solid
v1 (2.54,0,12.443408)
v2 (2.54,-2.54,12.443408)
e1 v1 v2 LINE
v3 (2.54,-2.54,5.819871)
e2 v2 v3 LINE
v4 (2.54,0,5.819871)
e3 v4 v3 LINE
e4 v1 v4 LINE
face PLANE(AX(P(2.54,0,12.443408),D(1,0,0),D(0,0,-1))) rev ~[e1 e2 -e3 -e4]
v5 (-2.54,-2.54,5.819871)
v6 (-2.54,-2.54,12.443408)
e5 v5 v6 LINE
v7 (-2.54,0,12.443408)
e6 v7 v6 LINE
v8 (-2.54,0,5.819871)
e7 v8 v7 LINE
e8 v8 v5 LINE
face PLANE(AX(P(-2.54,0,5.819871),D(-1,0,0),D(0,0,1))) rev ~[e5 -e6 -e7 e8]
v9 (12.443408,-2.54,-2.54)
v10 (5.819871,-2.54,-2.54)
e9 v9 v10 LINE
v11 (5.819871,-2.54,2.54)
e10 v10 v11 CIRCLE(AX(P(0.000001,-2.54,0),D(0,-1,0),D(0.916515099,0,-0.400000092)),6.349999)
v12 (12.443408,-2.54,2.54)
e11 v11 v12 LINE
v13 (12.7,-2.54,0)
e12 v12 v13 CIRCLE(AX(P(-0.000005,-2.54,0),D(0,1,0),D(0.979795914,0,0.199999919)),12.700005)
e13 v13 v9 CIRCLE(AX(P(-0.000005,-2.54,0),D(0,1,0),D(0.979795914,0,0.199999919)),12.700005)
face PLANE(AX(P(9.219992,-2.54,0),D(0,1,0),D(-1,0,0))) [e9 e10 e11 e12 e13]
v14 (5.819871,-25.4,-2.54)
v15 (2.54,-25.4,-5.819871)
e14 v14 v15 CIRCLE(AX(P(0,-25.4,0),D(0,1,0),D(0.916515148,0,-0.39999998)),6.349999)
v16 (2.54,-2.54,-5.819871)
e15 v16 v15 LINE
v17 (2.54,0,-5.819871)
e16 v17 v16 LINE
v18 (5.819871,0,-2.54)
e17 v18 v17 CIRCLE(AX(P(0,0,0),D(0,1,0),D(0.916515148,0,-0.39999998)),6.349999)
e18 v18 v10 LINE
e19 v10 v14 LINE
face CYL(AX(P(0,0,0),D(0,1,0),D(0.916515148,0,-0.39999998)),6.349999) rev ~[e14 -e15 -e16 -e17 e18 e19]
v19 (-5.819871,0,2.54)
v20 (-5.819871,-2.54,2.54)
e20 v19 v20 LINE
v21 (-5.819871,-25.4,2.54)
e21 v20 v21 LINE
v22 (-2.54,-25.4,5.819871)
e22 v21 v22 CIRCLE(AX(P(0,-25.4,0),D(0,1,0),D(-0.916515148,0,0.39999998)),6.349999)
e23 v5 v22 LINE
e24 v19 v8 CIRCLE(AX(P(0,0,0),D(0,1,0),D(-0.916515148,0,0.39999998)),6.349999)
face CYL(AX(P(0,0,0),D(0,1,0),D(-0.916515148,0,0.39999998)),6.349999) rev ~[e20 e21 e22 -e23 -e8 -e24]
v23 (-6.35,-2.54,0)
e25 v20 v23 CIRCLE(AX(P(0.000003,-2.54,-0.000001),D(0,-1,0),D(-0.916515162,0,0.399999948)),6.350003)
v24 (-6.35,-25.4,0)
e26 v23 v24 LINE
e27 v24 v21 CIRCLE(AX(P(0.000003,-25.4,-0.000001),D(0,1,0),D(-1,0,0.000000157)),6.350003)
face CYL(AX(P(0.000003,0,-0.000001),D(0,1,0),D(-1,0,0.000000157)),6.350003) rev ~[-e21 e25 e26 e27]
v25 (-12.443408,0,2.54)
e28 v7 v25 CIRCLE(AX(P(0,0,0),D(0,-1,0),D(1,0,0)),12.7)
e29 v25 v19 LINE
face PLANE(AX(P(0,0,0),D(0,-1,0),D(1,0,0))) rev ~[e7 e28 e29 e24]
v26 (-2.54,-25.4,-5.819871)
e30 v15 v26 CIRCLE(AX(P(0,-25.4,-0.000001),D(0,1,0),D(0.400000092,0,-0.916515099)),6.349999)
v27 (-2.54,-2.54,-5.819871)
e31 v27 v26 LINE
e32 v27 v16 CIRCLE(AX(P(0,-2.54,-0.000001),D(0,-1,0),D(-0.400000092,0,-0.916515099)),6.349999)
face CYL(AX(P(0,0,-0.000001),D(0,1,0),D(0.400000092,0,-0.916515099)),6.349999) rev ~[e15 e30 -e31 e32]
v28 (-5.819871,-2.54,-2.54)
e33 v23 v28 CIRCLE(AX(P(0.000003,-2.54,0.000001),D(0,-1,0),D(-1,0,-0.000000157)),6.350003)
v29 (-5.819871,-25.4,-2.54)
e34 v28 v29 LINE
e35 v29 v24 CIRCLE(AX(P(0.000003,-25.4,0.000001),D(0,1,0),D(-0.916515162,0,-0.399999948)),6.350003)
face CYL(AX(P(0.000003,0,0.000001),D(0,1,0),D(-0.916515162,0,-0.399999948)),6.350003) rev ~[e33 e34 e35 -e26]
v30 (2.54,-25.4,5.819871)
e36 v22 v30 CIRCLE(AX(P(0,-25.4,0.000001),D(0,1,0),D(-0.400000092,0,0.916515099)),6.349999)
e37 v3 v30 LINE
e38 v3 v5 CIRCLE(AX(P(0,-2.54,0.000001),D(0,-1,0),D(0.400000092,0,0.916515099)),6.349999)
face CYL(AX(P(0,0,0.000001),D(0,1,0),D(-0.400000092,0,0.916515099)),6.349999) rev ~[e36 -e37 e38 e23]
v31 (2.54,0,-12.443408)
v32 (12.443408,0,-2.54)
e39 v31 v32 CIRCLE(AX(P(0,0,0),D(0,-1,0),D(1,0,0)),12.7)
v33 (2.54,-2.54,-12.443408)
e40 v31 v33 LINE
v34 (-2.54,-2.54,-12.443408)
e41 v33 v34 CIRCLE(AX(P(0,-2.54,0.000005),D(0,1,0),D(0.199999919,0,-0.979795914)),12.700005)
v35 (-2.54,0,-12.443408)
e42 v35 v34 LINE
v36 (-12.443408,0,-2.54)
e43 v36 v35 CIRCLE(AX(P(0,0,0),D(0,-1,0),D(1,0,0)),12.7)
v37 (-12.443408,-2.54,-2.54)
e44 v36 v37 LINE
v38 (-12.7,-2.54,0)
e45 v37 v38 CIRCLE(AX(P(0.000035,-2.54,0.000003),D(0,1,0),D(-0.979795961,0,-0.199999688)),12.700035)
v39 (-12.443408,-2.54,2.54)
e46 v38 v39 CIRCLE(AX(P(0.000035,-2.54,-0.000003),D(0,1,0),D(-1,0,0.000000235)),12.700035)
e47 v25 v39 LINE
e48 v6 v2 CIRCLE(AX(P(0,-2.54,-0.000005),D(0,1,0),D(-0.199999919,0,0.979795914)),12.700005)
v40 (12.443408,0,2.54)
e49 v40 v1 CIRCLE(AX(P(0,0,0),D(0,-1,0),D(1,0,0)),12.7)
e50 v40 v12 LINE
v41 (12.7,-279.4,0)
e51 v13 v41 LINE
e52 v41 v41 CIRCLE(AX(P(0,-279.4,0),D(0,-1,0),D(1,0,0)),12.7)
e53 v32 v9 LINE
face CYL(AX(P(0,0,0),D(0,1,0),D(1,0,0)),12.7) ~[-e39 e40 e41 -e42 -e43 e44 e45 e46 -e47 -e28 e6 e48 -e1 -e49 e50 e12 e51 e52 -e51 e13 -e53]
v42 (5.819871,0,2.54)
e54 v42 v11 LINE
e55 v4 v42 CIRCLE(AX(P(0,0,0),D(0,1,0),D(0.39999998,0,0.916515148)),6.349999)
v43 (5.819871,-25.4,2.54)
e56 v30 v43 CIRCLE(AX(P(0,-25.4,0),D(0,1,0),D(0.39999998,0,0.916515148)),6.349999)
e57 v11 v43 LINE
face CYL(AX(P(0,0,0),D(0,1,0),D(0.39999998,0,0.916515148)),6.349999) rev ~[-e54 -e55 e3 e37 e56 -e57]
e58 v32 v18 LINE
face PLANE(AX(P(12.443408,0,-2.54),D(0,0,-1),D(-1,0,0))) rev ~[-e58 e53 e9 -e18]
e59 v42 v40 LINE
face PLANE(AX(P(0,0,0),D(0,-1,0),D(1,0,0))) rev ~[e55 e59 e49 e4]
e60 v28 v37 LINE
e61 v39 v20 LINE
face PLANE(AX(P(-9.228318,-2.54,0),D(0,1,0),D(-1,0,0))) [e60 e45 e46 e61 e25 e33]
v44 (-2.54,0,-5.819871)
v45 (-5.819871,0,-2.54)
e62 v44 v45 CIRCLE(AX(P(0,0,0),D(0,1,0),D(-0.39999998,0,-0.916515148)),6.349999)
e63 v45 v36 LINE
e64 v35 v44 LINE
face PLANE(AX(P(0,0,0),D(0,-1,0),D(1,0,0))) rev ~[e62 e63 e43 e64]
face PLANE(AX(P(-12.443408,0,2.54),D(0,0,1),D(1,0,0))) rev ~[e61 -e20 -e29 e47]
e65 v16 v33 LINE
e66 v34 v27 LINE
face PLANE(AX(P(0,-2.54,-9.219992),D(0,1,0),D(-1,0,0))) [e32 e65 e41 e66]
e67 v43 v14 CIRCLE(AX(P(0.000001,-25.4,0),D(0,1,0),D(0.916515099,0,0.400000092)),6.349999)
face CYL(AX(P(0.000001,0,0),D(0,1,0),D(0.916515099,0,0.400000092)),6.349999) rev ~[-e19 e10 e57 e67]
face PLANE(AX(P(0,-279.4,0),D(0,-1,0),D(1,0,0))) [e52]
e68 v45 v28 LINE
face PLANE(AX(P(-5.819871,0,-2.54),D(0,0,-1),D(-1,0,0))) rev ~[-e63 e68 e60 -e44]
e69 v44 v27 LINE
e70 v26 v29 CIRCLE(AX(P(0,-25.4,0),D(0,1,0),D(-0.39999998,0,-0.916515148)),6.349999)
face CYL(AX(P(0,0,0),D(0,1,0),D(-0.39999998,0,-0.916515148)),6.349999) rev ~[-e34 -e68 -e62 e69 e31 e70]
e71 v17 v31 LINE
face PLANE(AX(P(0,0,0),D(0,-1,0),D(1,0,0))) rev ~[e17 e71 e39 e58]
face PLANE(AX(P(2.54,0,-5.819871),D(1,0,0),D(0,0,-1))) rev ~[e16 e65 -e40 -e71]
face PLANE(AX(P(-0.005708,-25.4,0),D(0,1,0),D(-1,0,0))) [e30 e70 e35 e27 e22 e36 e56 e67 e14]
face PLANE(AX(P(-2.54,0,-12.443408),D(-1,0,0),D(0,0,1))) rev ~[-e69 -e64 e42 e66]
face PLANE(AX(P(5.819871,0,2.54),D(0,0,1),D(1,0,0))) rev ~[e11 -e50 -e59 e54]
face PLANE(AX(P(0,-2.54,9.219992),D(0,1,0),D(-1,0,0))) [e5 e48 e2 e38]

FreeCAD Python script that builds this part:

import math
import FreeCAD as App
import Part
import Sketcher

V = App.Vector
Q = App.Units.Quantity

doc = App.newDocument("Part")
body = doc.addObject("PartDesign::Body", "Body")

# Sketch on XZ plane
sketch1 = body.newObject("Sketcher::SketchObject", "Sketch")
sketch1.AttachmentSupport = (doc.getObject("XZ_Plane"), [""])
sketch1.MapMode = "FlatFace"
sketch1.addGeometry(Part.Circle(V(0, 0, 0), V(0, 0, 1), 13), False)
sketch1.addConstraint([
    Sketcher.Constraint("Coincident", 0, 3, -1, 1),
    Sketcher.Constraint("Diameter", 0, Q("1 in")),
])
pad1 = body.newObject("PartDesign::Pad", "Pad")
pad1.Profile = sketch1
pad1.Length = Q("11 in")

# Sketch on XZ plane
sketch2 = body.newObject("Sketcher::SketchObject", "Sketch001")
sketch2.AttachmentSupport = (doc.getObject("XZ_Plane"), [""])
sketch2.MapMode = "FlatFace"
sketch2.addGeometry([
    Part.ArcOfCircle(Part.Circle(V(0, 0, 0), V(0, 0, 1), 6.4), math.radians(-180), math.radians(-156)),  # 0
    Part.ArcOfCircle(Part.Circle(V(0, 0, 0), V(0, 0, 1), 6.4), math.radians(156), math.radians(180)),  # 1
    Part.ArcOfCircle(Part.Circle(V(0, 0, 0), V(0, 0, 1), 6.3), math.radians(114), math.radians(156)),  # 2
    Part.ArcOfCircle(Part.Circle(V(0, 0, 0), V(0, 0, 1), 6.3), math.radians(66), math.radians(114)),  # 3
    Part.ArcOfCircle(Part.Circle(V(0, 0, 0), V(0, 0, 1), 6.3), math.radians(24), math.radians(66)),  # 4
    Part.ArcOfCircle(Part.Circle(V(0, 0, 0), V(0, 0, 1), 6.3), math.radians(-24), math.radians(24)),  # 5
    Part.ArcOfCircle(Part.Circle(V(0, 0, 0), V(0, 0, 1), 6.3), math.radians(-66), math.radians(-24)),  # 6
    Part.ArcOfCircle(Part.Circle(V(0, 0, 0), V(0, 0, 1), 6.3), math.radians(-114), math.radians(-66)),  # 7
    Part.ArcOfCircle(Part.Circle(V(0, 0, 0), V(0, 0, 1), 6.3), math.radians(-156), math.radians(-114)),  # 8
], False)
sketch2.addConstraint([
    Sketcher.Constraint("Tangent", 0, 1, 1, 2),
    Sketcher.Constraint("Tangent", 1, 1, 2, 2),
    Sketcher.Constraint("Tangent", 2, 1, 3, 2),
    Sketcher.Constraint("Tangent", 3, 1, 4, 2),
    Sketcher.Constraint("Tangent", 4, 1, 5, 2),
    Sketcher.Constraint("Tangent", 5, 1, 6, 2),
    Sketcher.Constraint("Tangent", 6, 1, 7, 2),
    Sketcher.Constraint("Tangent", 7, 1, 8, 2),
    Sketcher.Constraint("Tangent", 8, 1, 0, 2),
    Sketcher.Constraint("Coincident", 0, 3, -1, 1),
    Sketcher.Constraint("Coincident", 2, 3, -1, 1),
    Sketcher.Constraint("Coincident", 4, 3, -1, 1),
    Sketcher.Constraint("Coincident", 6, 3, -1, 1),
    Sketcher.Constraint("PointOnObject", 0, 1, -1),
    Sketcher.Constraint("Horizontal", 2, 1, 3, 1),
    Sketcher.Constraint("Horizontal", 1, 1, 4, 1),
    Sketcher.Constraint("Horizontal", 6, 1, 7, 1),
    Sketcher.Constraint("Horizontal", 5, 1, 8, 1),
    Sketcher.Constraint("Vertical", 4, 1, 5, 1),
    Sketcher.Constraint("Vertical", 3, 1, 6, 1),
    Sketcher.Constraint("Radius", 0, Q("0.2500001 in")),
    Sketcher.Constraint("DistanceY", -1, 1, 1, 1, Q("0.1 in")),
    Sketcher.Constraint("DistanceX", 2, 1, -1, 1, Q("0.1 in")),
])
pocket1 = body.newObject("PartDesign::Pocket", "Pocket")
pocket1.Profile = sketch2
pocket1.Length = Q("1 in")
pocket1.Reversed = True

# Sketch on XZ plane
sketch3 = body.newObject("Sketcher::SketchObject", "Sketch002")
sketch3.AttachmentSupport = (doc.getObject("XZ_Plane"), [""])
sketch3.MapMode = "FlatFace"
sketch3.addGeometry([
    Part.ArcOfCircle(Part.Circle(V(0, 0, 0), V(0, 0, 1), 6.4), math.radians(156), math.radians(180)),  # 0
    Part.ArcOfCircle(Part.Circle(V(0, 0, 0), V(0, 0, 1), 6.4), math.radians(-180), math.radians(-156)),  # 1
    Part.LineSegment(V(-5.8, -2.5, 0), V(-12.4, -2.5, 0)),  # 2
    Part.ArcOfCircle(Part.Circle(V(0, 0, 0), V(0, 0, 1), 12.7), math.radians(-180), math.radians(-168.46)),  # 3
    Part.ArcOfCircle(Part.Circle(V(0, 0, 0), V(0, 0, 1), 12.7), math.radians(168.46), math.radians(180)),  # 4
    Part.LineSegment(V(-12.4, 2.5, 0), V(-5.8, 2.5, 0)),  # 5
    Part.ArcOfCircle(Part.Circle(V(0, 0, 0), V(0, 0, 1), 6.3), math.radians(66), math.radians(114)),  # 6
    Part.LineSegment(V(-2.5, 5.8, 0), V(-2.5, 12.4, 0)),  # 7
    Part.ArcOfCircle(Part.Circle(V(0, 0, 0), V(0, 0, 1), 12.7), math.radians(78), math.radians(102)),  # 8
    Part.LineSegment(V(2.5, 12.4, 0), V(2.5, 5.8, 0)),  # 9
    Part.LineSegment(V(-2.5, -12.4, 0), V(-2.5, -5.8, 0)),  # 10
    Part.ArcOfCircle(Part.Circle(V(0, 0, 0), V(0, 0, 1), 6.3), math.radians(-114), math.radians(-66)),  # 11
    Part.LineSegment(V(2.5, -5.8, 0), V(2.5, -12.4, 0)),  # 12
    Part.ArcOfCircle(Part.Circle(V(0, 0, 0), V(0, 0, 1), 12.7), math.radians(-102), math.radians(-78)),  # 13
    Part.ArcOfCircle(Part.Circle(V(0, 0, 0), V(0, 0, 1), 6.3), math.radians(-24), math.radians(24)),  # 14
    Part.LineSegment(V(5.8, 2.5, 0), V(12.4, 2.5, 0)),  # 15
    Part.ArcOfCircle(Part.Circle(V(0, 0, 0), V(0, 0, 1), 12.7), math.radians(-12), math.radians(12)),  # 16
    Part.LineSegment(V(12.4, -2.5, 0), V(5.8, -2.5, 0)),  # 17
], False)
sketch3.addConstraint([
    Sketcher.Constraint("Tangent", 0, 2, 1, 1),
    Sketcher.Constraint("Coincident", 1, 2, 2, 1),
    Sketcher.Constraint("Coincident", 2, 2, 3, 2),
    Sketcher.Constraint("Tangent", 3, 1, 4, 2),
    Sketcher.Constraint("Coincident", 4, 1, 5, 1),
    Sketcher.Constraint("Coincident", 5, 2, 0, 1),
    Sketcher.Constraint("Coincident", 6, 2, 7, 1),
    Sketcher.Constraint("Coincident", 7, 2, 8, 2),
    Sketcher.Constraint("Coincident", 8, 1, 9, 1),
    Sketcher.Constraint("Coincident", 9, 2, 6, 1),
    Sketcher.Constraint("Coincident", 10, 2, 11, 1),
    Sketcher.Constraint("Coincident", 11, 2, 12, 1),
    Sketcher.Constraint("Coincident", 12, 2, 13, 2),
    Sketcher.Constraint("Coincident", 13, 1, 10, 1),
    Sketcher.Constraint("Coincident", 14, 2, 15, 1),
    Sketcher.Constraint("Coincident", 15, 2, 16, 2),
    Sketcher.Constraint("Coincident", 16, 1, 17, 1),
    Sketcher.Constraint("Coincident", 17, 2, 14, 1),
    Sketcher.Constraint("Horizontal", 2),
    Sketcher.Constraint("Horizontal", 5),
    Sketcher.Constraint("Vertical", 7),
    Sketcher.Constraint("Vertical", 9),
    Sketcher.Constraint("Vertical", 10),
    Sketcher.Constraint("Vertical", 12),
    Sketcher.Constraint("Horizontal", 15),
    Sketcher.Constraint("Horizontal", 17),
    Sketcher.Constraint("Coincident", 0, 3, -1, 1),
    Sketcher.Constraint("Coincident", 6, 3, -1, 1),
    Sketcher.Constraint("Coincident", 8, 3, -1, 1),
    Sketcher.Constraint("Coincident", 11, 3, -1, 1),
    Sketcher.Constraint("Coincident", 13, 3, -1, 1),
    Sketcher.Constraint("Coincident", 14, 3, -1, 1),
    Sketcher.Constraint("Coincident", 16, 3, -1, 1),
    Sketcher.Constraint("Equal", 0, 1),
    Sketcher.Constraint("Equal", 3, 4),
    Sketcher.Constraint("Equal", 6, 11),
    Sketcher.Constraint("Equal", 8, 13),
    Sketcher.Constraint("Equal", 11, 14),
    Sketcher.Constraint("Equal", 13, 16),
    Sketcher.Constraint("Symmetric", 1, 2, 14, 2, -1, 1),
    Sketcher.Constraint("Symmetric", 4, 1, 16, 1, -1, 1),
    Sketcher.Constraint("Symmetric", 2, 2, 16, 1, -2),
    Sketcher.Constraint("PointOnObject", 0, 2, -1),
    Sketcher.Constraint("PointOnObject", 3, 1, -1),
    Sketcher.Constraint("Horizontal", 7, 2, 8, 1),
    Sketcher.Constraint("Horizontal", 10, 2, 11, 2),
    Sketcher.Constraint("Vertical", 7, 2, 10, 2),
    Sketcher.Constraint("Equal", 17, 7),
    Sketcher.Constraint("Radius", 0, Q("0.2500001 in")),
    Sketcher.Constraint("DistanceY", 1, 2, -1, 1, Q("0.1 in")),
    Sketcher.Constraint("DistanceX", 3, 1, -1, 1, Q("0.5 in")),
    Sketcher.Constraint("Radius", 3, 12.700035),
])
pocket2 = body.newObject("PartDesign::Pocket", "Pocket001")
pocket2.Profile = sketch3
pocket2.Length = Q("0.1 in")
pocket2.Reversed = True

doc.recompute()
